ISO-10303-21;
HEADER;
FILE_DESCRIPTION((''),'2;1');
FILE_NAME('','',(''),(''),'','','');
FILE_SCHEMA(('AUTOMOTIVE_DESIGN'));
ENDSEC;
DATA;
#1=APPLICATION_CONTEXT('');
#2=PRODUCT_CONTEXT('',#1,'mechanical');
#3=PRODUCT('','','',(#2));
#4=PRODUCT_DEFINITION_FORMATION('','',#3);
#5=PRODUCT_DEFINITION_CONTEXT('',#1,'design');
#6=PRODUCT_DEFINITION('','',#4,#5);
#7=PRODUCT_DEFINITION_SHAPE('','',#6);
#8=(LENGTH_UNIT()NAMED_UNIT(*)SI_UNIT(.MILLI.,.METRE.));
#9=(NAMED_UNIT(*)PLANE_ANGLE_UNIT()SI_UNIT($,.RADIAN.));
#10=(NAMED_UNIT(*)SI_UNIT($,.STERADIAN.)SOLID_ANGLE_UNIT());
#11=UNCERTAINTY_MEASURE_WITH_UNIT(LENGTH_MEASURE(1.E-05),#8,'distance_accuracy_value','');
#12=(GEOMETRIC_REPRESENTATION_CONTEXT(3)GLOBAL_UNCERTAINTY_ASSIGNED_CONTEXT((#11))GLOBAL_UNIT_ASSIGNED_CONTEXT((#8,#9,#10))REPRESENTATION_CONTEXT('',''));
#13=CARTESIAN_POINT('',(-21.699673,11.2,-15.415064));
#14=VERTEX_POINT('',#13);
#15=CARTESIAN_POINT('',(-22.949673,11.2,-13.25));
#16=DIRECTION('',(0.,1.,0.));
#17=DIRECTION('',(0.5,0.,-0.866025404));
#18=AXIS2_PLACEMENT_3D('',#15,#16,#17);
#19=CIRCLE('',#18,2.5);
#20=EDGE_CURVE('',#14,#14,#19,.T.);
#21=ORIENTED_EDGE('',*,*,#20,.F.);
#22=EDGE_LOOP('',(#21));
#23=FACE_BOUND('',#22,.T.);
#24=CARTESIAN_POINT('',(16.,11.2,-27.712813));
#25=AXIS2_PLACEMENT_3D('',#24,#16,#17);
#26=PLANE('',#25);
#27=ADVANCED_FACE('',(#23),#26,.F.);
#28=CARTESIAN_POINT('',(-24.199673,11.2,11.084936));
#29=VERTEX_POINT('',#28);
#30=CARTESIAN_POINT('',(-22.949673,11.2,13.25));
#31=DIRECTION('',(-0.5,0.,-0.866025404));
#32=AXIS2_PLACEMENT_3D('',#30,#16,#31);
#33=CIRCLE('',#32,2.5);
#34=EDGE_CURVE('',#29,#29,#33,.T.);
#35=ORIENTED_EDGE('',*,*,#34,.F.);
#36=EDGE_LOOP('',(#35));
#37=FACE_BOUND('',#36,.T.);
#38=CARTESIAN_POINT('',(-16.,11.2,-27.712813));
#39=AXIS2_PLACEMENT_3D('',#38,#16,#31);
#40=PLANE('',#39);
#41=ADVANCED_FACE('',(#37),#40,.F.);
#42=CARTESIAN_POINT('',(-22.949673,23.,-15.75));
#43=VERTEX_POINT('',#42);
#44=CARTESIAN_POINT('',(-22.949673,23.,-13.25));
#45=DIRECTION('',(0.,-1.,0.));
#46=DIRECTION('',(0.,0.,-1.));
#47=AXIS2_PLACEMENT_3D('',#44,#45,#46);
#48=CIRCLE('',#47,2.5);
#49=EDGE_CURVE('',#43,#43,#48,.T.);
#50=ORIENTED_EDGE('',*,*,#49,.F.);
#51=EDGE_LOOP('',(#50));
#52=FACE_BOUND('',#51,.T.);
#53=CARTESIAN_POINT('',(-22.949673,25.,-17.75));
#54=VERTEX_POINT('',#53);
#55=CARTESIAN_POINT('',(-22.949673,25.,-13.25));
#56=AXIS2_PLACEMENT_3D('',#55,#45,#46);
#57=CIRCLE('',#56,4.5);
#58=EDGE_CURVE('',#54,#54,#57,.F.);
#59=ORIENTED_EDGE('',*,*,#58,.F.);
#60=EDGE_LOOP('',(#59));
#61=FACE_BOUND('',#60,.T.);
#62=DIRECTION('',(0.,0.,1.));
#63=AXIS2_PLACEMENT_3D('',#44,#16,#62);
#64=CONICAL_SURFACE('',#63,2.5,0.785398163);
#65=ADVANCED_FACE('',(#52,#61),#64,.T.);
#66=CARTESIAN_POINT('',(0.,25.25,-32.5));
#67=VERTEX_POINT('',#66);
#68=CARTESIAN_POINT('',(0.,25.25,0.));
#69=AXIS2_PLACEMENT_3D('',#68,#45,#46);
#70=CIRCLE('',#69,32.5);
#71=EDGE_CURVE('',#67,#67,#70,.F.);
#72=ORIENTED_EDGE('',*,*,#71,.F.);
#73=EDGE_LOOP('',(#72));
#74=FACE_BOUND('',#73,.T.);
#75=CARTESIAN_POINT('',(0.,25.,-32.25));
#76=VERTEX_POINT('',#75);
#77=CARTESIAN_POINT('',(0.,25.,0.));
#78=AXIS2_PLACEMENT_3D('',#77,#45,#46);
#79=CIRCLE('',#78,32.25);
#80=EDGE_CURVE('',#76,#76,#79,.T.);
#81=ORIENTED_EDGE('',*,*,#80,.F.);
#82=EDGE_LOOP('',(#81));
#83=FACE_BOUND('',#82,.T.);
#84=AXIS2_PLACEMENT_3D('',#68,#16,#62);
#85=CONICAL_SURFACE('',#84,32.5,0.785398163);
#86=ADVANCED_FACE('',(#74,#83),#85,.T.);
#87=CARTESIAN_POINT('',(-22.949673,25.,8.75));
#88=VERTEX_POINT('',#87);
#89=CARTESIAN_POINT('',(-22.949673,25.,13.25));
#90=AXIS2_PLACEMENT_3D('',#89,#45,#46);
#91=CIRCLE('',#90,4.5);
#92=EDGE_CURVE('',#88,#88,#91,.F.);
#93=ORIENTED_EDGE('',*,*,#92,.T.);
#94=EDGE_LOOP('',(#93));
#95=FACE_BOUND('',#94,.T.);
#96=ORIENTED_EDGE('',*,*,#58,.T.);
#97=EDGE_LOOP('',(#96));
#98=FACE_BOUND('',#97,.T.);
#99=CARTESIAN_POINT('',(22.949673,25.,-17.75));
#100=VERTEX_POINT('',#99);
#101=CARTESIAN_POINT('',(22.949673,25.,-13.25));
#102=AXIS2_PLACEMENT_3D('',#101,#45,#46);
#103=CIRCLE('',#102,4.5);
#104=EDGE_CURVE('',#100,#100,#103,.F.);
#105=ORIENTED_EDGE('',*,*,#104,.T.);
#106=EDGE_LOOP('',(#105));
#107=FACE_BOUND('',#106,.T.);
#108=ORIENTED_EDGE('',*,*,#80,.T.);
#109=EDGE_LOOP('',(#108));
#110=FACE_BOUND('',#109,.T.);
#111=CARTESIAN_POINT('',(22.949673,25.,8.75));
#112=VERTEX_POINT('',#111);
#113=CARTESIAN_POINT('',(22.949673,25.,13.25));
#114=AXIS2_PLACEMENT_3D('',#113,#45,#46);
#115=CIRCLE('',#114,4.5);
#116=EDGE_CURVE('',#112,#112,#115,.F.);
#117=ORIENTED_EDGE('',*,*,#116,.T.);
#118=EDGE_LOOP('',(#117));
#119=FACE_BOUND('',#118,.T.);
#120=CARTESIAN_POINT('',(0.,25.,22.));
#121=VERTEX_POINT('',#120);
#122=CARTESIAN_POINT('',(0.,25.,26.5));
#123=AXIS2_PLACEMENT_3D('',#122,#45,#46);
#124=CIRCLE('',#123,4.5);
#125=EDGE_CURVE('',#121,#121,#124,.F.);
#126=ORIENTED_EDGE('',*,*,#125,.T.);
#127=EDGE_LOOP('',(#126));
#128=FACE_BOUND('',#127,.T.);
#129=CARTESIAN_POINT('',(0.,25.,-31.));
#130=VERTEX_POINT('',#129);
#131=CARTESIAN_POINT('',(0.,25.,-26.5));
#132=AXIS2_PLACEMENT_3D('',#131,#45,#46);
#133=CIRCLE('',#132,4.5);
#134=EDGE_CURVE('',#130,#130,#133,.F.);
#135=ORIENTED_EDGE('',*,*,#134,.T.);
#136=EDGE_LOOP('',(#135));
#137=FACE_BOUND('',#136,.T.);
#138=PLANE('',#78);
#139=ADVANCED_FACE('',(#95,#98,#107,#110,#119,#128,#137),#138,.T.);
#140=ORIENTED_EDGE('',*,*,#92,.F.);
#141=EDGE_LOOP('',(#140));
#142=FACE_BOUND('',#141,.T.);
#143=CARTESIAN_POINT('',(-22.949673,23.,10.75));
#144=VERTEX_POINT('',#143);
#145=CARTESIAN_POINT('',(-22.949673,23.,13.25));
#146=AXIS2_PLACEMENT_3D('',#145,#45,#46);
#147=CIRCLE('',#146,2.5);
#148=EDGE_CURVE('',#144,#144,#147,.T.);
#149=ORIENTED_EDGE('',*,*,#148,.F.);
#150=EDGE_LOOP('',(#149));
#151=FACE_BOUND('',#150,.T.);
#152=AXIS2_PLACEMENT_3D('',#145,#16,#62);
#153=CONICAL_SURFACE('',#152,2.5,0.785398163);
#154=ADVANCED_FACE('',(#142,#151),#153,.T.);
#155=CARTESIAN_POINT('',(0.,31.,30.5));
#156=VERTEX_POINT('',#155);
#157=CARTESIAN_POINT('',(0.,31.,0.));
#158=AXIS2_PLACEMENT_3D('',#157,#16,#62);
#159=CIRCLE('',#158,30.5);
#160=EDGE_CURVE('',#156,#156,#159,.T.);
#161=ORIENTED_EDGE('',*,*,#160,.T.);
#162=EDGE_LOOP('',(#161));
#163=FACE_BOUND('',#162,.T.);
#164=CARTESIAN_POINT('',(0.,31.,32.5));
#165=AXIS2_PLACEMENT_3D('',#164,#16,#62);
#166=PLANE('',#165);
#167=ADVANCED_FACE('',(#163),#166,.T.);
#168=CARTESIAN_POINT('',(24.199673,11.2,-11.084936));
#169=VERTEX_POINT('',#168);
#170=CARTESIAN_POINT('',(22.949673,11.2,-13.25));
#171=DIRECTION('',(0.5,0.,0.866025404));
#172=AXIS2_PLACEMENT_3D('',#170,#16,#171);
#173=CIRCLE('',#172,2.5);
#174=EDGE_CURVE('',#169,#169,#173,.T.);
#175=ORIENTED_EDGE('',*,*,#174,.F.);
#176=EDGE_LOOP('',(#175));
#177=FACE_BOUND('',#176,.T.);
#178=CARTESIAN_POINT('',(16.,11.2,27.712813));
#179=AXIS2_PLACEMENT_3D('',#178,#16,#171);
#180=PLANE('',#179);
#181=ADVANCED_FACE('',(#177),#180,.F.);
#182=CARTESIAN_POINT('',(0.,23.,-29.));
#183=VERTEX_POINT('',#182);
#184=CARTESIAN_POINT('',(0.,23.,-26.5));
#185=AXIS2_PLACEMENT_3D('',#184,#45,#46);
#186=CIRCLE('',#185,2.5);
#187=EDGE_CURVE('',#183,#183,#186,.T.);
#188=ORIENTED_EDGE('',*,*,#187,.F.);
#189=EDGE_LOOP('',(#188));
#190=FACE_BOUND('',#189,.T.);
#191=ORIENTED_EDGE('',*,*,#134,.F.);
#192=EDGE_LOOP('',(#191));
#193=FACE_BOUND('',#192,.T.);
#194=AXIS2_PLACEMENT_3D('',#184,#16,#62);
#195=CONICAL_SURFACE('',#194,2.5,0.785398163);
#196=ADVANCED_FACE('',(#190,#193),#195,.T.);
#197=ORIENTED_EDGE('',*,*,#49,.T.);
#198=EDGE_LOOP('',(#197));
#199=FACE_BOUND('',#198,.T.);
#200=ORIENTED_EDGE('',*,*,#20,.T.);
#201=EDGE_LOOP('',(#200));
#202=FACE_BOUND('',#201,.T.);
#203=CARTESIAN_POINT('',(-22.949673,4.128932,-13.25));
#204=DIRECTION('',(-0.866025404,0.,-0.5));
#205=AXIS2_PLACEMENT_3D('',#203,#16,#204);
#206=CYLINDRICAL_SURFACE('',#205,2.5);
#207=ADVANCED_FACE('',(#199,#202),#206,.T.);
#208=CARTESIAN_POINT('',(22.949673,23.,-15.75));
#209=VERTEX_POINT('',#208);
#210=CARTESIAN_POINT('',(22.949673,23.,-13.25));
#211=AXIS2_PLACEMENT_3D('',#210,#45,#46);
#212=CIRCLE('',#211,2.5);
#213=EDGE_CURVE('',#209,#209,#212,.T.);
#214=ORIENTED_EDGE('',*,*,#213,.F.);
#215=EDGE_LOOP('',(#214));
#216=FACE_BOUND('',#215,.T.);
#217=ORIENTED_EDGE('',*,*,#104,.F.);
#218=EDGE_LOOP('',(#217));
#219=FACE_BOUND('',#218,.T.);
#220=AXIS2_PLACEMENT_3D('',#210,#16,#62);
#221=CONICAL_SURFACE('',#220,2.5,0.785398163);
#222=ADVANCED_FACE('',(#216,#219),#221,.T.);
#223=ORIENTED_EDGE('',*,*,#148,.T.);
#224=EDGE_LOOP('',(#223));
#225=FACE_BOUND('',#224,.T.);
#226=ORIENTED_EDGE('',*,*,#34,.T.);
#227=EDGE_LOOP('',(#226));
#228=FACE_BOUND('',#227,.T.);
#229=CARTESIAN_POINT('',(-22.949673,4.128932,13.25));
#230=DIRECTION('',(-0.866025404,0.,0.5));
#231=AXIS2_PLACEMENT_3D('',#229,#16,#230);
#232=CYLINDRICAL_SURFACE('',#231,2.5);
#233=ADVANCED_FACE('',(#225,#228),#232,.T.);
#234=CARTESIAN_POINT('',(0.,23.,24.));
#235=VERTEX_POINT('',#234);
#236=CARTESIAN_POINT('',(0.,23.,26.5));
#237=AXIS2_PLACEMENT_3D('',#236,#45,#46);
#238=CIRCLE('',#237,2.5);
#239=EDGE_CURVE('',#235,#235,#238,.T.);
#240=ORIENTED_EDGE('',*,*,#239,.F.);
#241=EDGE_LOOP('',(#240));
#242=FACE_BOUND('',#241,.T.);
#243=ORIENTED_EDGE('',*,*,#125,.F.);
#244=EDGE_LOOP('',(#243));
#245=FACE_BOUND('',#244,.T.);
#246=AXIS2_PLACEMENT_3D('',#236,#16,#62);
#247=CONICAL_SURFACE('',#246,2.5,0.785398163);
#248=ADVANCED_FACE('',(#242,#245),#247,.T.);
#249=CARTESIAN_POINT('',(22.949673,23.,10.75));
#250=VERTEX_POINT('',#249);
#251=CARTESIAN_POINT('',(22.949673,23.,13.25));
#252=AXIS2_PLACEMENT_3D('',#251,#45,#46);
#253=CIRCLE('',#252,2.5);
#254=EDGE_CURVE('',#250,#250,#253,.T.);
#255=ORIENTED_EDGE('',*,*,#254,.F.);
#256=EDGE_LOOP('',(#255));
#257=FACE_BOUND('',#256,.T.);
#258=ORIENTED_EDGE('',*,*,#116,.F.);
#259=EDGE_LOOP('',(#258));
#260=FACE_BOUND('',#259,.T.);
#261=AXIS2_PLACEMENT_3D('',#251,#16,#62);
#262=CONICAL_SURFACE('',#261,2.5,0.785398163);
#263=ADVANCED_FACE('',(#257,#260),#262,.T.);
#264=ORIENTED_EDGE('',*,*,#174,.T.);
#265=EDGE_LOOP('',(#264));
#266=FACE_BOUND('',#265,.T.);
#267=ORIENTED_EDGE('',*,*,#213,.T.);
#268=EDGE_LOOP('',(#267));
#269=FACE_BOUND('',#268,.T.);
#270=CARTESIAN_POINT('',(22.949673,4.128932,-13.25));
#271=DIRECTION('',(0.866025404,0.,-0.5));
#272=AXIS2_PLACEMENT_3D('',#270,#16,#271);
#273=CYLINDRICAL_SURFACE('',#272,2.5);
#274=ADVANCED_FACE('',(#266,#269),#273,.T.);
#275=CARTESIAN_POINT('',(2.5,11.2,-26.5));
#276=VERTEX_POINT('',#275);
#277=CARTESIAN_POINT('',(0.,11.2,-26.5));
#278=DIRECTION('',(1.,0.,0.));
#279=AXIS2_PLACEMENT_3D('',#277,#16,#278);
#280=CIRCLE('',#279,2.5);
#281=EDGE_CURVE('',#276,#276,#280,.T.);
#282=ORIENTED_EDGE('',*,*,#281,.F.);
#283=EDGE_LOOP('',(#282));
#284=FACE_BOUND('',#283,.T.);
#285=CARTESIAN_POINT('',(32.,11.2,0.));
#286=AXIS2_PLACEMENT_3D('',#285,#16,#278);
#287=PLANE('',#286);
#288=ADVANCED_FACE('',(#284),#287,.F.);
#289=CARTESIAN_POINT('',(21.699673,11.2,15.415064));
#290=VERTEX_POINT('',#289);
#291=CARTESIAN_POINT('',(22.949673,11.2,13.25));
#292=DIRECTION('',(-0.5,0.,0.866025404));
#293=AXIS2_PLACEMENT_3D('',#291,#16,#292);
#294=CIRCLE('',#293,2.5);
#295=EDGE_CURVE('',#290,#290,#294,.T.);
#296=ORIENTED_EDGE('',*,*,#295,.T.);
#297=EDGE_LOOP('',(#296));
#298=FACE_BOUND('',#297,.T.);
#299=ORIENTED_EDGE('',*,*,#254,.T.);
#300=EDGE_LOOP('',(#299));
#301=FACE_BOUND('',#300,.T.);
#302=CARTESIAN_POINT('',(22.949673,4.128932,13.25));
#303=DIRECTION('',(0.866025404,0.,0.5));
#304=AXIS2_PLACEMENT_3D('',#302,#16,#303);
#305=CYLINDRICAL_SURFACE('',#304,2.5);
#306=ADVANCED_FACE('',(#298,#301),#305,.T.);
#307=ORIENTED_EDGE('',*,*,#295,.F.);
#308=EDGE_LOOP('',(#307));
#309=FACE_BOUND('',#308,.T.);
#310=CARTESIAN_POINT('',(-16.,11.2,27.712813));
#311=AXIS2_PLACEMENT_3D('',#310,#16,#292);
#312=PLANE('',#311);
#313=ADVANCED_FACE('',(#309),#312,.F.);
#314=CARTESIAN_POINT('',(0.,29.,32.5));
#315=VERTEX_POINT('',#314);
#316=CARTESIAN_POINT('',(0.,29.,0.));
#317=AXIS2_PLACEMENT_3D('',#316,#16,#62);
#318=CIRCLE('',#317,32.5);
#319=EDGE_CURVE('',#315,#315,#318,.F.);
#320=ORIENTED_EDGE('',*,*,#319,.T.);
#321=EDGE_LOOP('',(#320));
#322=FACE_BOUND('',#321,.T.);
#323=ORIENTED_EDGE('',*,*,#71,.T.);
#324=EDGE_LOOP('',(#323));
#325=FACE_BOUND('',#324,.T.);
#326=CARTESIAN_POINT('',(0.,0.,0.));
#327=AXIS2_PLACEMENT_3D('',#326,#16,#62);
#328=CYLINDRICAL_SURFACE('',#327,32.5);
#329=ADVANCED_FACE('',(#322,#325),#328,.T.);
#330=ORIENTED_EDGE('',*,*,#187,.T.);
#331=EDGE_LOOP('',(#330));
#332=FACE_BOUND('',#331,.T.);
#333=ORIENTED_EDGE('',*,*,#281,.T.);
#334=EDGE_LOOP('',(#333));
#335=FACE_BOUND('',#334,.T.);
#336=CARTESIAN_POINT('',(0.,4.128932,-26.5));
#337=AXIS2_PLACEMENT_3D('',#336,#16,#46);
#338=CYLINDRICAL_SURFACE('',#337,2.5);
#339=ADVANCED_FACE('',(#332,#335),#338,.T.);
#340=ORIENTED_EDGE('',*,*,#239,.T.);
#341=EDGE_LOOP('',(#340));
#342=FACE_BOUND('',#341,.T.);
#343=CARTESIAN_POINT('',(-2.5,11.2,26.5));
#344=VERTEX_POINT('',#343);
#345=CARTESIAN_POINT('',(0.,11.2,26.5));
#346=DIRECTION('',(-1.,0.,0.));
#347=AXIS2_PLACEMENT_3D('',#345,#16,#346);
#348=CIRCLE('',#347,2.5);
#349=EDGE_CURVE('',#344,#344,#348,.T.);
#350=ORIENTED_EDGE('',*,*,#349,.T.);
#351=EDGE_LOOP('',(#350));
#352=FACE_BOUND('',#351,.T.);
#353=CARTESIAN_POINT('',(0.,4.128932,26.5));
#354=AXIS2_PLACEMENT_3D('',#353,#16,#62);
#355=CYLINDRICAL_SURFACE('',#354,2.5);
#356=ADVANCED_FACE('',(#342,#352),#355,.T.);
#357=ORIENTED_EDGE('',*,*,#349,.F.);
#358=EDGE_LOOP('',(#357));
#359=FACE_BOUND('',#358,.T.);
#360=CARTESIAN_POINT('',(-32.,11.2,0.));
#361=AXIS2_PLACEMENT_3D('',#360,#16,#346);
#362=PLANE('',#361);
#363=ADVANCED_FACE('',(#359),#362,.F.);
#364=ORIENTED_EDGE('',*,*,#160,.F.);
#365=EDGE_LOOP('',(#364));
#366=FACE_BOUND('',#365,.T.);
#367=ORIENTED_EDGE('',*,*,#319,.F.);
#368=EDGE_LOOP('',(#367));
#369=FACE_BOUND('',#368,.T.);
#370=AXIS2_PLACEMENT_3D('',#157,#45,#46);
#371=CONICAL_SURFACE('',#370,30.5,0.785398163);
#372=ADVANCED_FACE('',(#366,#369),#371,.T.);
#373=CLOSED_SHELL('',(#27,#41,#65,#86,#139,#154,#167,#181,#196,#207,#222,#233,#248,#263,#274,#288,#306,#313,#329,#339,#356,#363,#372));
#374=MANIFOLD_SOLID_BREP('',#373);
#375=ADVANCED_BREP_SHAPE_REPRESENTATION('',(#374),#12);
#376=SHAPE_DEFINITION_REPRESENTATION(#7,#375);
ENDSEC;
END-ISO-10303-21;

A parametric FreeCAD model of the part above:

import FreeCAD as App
import Part
import Sketcher
from FreeCAD import Vector
Q = App.Units.Quantity


def edges_at(feature, points):
    """Names of the edges that pass closest to the given points."""
    edges = feature.Shape.Edges
    near = lambda p: min(range(len(edges)), key=lambda i: edges[i].distToShape(Part.Vertex(*p))[0])
    return sorted({f"Edge{near(p) + 1}" for p in points})


def add_polygon(sketch, points):
    """Adds a closed chain of lines whose ends are joined by coincident constraints."""
    first, n = sketch.GeometryCount, len(points)
    for a, b in zip(points, points[1:] + points[:1]):
        sketch.addGeometry(Part.LineSegment(App.Vector(*a, 0), App.Vector(*b, 0)), False)
    for i in range(n):
        sketch.addConstraint(Sketcher.Constraint("Coincident", first + i, 2, first + (i + 1) % n, 1))

doc = App.newDocument("Part")
body = doc.addObject("PartDesign::Body", "Body")

sketch1 = body.newObject("Sketcher::SketchObject", "Sketch")
sketch1.AttachmentSupport = (doc.getObject("YZ_Plane"), [""])
sketch1.MapMode = "FlatFace"
add_polygon(sketch1, [(31, 32), (25, 32), (25, 0), (31, 0)])
sketch1.addConstraint([
    Sketcher.Constraint("Horizontal", 0),
    Sketcher.Constraint("Vertical", 1),
    Sketcher.Constraint("Horizontal", 2),
    Sketcher.Constraint("Vertical", 3),
    Sketcher.Constraint("PointOnObject", 1, 2, -1),
    Sketcher.Constraint("DistanceX", 0, 2, 0, 1, Q("6 mm")),
    Sketcher.Constraint("DistanceY", 1, 2, 1, 1, Q("32.5 mm")),
    Sketcher.Constraint("DistanceX", -1, 1, 0, 2, Q("25 mm")),
])
revolution = body.newObject("PartDesign::Revolution", "Revolution")
revolution.Profile = sketch1
revolution.ReferenceAxis = (sketch1, ["H_Axis"])
revolution.Angle = 360
doc.recompute()

chamfer = body.newObject("PartDesign::Chamfer", "Chamfer")
chamfer.Base = (revolution, edges_at(revolution, [(0, 31, -32.5)]))
chamfer.Size = 2

sketch2 = body.newObject("Sketcher::SketchObject", "Sketch001")
sketch2.AttachmentSupport = (doc.getObject("XZ_Plane"), [""])
sketch2.MapMode = "FlatFace"
sketch2.AttachmentOffset = App.Placement(Vector(0, 0, -25), App.Rotation())
sketch2.addGeometry(Part.Circle(Vector(0, 26.5, 0), Vector(0, 0, 1), 2.5), False)
sketch2.addConstraint([
    Sketcher.Constraint("PointOnObject", 0, 3, -2),
    Sketcher.Constraint("Diameter", 0, Q("5 mm")),
    Sketcher.Constraint("DistanceY", -1, 1, 0, 3, Q("26.5 mm")),
])
pad1 = body.newObject("PartDesign::Pad", "Pad")
pad1.Profile = sketch2
pad1.Length = 13.8
doc.recompute()

polarpattern = body.newObject("PartDesign::PolarPattern", "PolarPattern")
polarpattern.Originals = [pad1]
polarpattern.Axis = (doc.getObject("Y_Axis"), [""])
polarpattern.Angle = 360
polarpattern.Occurrences = 6
body.Tip = polarpattern
doc.recompute()

chamfer2 = body.newObject("PartDesign::Chamfer", "Chamfer001")
chamfer2.Base = (polarpattern, edges_at(polarpattern, [
    (2.5, 25, 26.5),
    (24.2, 25, 11.085),
    (21.7, 25, -15.415),
    (-2.5, 25, -26.5),
    (-24.2, 25, -11.085),
    (-21.7, 25, 15.415),
]))
chamfer2.Size = 2
doc.recompute()

chamfer3 = body.newObject("PartDesign::Chamfer", "Chamfer002")
chamfer3.Base = (chamfer2, edges_at(chamfer2, [(0, 25, -32.5)]))
chamfer3.Size = 0.25

doc.recompute()
